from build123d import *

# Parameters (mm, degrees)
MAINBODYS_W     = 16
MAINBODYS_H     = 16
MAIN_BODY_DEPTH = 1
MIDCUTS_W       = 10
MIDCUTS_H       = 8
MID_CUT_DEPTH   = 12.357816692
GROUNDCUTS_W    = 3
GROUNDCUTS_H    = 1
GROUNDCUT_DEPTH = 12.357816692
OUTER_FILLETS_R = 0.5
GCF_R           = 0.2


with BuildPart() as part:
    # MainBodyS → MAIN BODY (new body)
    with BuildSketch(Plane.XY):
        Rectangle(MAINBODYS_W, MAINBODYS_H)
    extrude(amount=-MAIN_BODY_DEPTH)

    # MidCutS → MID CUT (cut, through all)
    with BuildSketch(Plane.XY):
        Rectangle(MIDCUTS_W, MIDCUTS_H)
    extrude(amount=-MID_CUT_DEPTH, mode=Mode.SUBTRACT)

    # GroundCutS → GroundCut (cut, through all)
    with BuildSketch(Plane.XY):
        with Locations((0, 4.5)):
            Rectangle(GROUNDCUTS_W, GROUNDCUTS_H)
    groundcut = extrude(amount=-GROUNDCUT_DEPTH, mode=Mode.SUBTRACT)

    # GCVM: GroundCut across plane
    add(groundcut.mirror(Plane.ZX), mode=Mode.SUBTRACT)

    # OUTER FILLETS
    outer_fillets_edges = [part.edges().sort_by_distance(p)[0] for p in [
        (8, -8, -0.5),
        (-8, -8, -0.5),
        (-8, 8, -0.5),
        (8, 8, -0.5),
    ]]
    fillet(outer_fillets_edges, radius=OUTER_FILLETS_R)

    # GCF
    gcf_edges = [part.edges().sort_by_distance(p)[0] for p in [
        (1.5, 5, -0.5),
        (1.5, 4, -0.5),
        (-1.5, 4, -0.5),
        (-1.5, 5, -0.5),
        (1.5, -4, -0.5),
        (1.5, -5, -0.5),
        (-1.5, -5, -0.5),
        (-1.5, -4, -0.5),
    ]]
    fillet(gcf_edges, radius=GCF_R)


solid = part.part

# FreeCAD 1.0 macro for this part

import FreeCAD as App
import Part
import Sketcher


def edges_at(feature, points):
    """Names of the edges that pass closest to the given points."""
    edges = feature.Shape.Edges
    near = lambda p: min(range(len(edges)), key=lambda i: edges[i].distToShape(Part.Vertex(*p))[0])
    return sorted({f"Edge{near(p) + 1}" for p in points})

doc = App.newDocument("Part")
body = doc.addObject("PartDesign::Body", "Body")

# Sketch on XY plane
sketch1 = doc.addObject("Sketcher::SketchObject", "Sketch")
body.addObject(sketch1)
sketch1.AttachmentSupport = (doc.XY_Plane, [""])
sketch1.MapMode = "FlatFace"
sketch1.addGeometry([
    Part.LineSegment(App.Vector(-8, 8, 0), App.Vector(-8, -8, 0)),
    Part.LineSegment(App.Vector(-8, -8, 0), App.Vector(8, -8, 0)),
    Part.LineSegment(App.Vector(8, -8, 0), App.Vector(8, 8, 0)),
    Part.LineSegment(App.Vector(8, 8, 0), App.Vector(-8, 8, 0)),
], False)
sketch1.addConstraint([
    Sketcher.Constraint("Coincident", 0, 2, 1, 1),
    Sketcher.Constraint("Coincident", 1, 2, 2, 1),
    Sketcher.Constraint("Coincident", 2, 2, 3, 1),
    Sketcher.Constraint("Coincident", 3, 2, 0, 1),
    Sketcher.Constraint("Vertical", 0),
    Sketcher.Constraint("Horizontal", 1),
    Sketcher.Constraint("Vertical", 2),
    Sketcher.Constraint("Horizontal", 3),
    Sketcher.Constraint("Symmetric", 0, 2, 2, 2, -1, 1),
    Sketcher.Constraint("Equal", 3, 0),
    Sketcher.Constraint("DistanceX", 1, 1, 1, 2, 16.0),
])
pad1 = doc.addObject("PartDesign::Pad", "Pad")
body.addObject(pad1)
pad1.Profile = sketch1
pad1.Length = 1
pad1.Reversed = True

# Sketch on XY plane
sketch2 = doc.addObject("Sketcher::SketchObject", "Sketch001")
body.addObject(sketch2)
sketch2.AttachmentSupport = (doc.XY_Plane, [""])
sketch2.MapMode = "FlatFace"
sketch2.addGeometry([
    Part.LineSegment(App.Vector(-5, 4, 0), App.Vector(-5, -4, 0)),
    Part.LineSegment(App.Vector(-5, -4, 0), App.Vector(5, -4, 0)),
    Part.LineSegment(App.Vector(5, -4, 0), App.Vector(5, 4, 0)),
    Part.LineSegment(App.Vector(5, 4, 0), App.Vector(-5, 4, 0)),
], False)
sketch2.addConstraint([
    Sketcher.Constraint("Coincident", 0, 2, 1, 1),
    Sketcher.Constraint("Coincident", 1, 2, 2, 1),
    Sketcher.Constraint("Coincident", 2, 2, 3, 1),
    Sketcher.Constraint("Coincident", 3, 2, 0, 1),
    Sketcher.Constraint("Vertical", 0),
    Sketcher.Constraint("Horizontal", 1),
    Sketcher.Constraint("Vertical", 2),
    Sketcher.Constraint("Horizontal", 3),
    Sketcher.Constraint("Symmetric", 0, 2, 2, 2, -1, 1),
    Sketcher.Constraint("DistanceX", 1, 1, 1, 2, 10.0),
    Sketcher.Constraint("DistanceY", 0, 2, 0, 1, 8.0),
])
pocket1 = doc.addObject("PartDesign::Pocket", "Pocket")
body.addObject(pocket1)
pocket1.Profile = sketch2
pocket1.Type = "ThroughAll"

# Sketch on XY plane
sketch3 = doc.addObject("Sketcher::SketchObject", "Sketch002")
body.addObject(sketch3)
sketch3.AttachmentSupport = (doc.XY_Plane, [""])
sketch3.MapMode = "FlatFace"
sketch3.addGeometry([
    Part.LineSegment(App.Vector(-1.5, 5, 0), App.Vector(-1.5, 4, 0)),
    Part.LineSegment(App.Vector(-1.5, 4, 0), App.Vector(1.5, 4, 0)),
    Part.LineSegment(App.Vector(1.5, 4, 0), App.Vector(1.5, 5, 0)),
    Part.LineSegment(App.Vector(1.5, 5, 0), App.Vector(-1.5, 5, 0)),
], False)
sketch3.addConstraint([
    Sketcher.Constraint("Coincident", 0, 2, 1, 1),
    Sketcher.Constraint("Coincident", 1, 2, 2, 1),
    Sketcher.Constraint("Coincident", 2, 2, 3, 1),
    Sketcher.Constraint("Coincident", 3, 2, 0, 1),
    Sketcher.Constraint("Vertical", 0),
    Sketcher.Constraint("Horizontal", 1),
    Sketcher.Constraint("Vertical", 2),
    Sketcher.Constraint("Horizontal", 3),
    Sketcher.Constraint("DistanceX", 1, 1, 1, 2, 3.0),
    Sketcher.Constraint("DistanceY", 0, 2, 0, 1, 1.0),
    Sketcher.Constraint("DistanceY", -1, 1, 0, 2, 4.0),
    Sketcher.Constraint("DistanceX", 0, 2, -1, 1, 1.5),
])
pocket2 = doc.addObject("PartDesign::Pocket", "Pocket001")
body.addObject(pocket2)
pocket2.Profile = sketch3
pocket2.Type = "ThroughAll"
doc.recompute()

mirrored = doc.addObject("PartDesign::Mirrored", "Mirrored")
body.addObject(mirrored)
mirrored.Originals = [pocket2]
mirrored.MirrorPlane = (doc.XZ_Plane, [""])
body.Tip = mirrored
doc.recompute()

fillet = doc.addObject("PartDesign::Fillet", "Fillet")
body.addObject(fillet)
fillet.Base = (mirrored, edges_at(mirrored, [
    (8, -8, -0.5),
    (-8, -8, -0.5),
    (-8, 8, -0.5),
    (8, 8, -0.5),
]))
fillet.Radius = 0.5
doc.recompute()

fillet2 = doc.addObject("PartDesign::Fillet", "Fillet001")
body.addObject(fillet2)
fillet2.Base = (fillet, edges_at(fillet, [
    (1.5, 5, -0.5),
    (1.5, 4, -0.5),
    (-1.5, 4, -0.5),
    (-1.5, 5, -0.5),
    (1.5, -4, -0.5),
    (1.5, -5, -0.5),
    (-1.5, -5, -0.5),
    (-1.5, -4, -0.5),
]))
fillet2.Radius = 0.2

doc.recompute()
